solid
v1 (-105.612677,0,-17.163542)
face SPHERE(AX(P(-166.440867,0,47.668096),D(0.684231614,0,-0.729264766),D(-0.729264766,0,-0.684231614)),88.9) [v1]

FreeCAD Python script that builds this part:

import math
import FreeCAD as App
import Part
import Sketcher
Q = App.Units.Quantity

doc = App.newDocument("Part")
body = doc.addObject("PartDesign::Body", "Body")

# Sketch on XZ plane
sketch1 = body.newObject("Sketcher::SketchObject", "Sketch")
sketch1.AttachmentSupport = (doc.getObject("XZ_Plane"), [""])
sketch1.MapMode = "FlatFace"
sketch1.addGeometry(Part.LineSegment(App.Vector(-227, 112, 0), App.Vector(-106, -17, 0)), False)
sketch1.addGeometry(Part.ArcOfCircle(Part.Circle(App.Vector(-166, 48, 0), App.Vector(0, 0, 1), 89), math.radians(133), math.radians(313)), False)
sketch1.addGeometry(Part.LineSegment(App.Vector(-227, 112, 0), App.Vector(-106, -17, 0)), True)  # axis
sketch1.addConstraint(Sketcher.Constraint("Coincident", 0, 1, 1, 1))
sketch1.addConstraint(Sketcher.Constraint("Coincident", 1, 2, 0, 2))
sketch1.addConstraint(Sketcher.Constraint("Coincident", 2, 1, 0, 1))
sketch1.addConstraint(Sketcher.Constraint("Coincident", 2, 2, 1, 2))
sketch1.addConstraint(Sketcher.Constraint("Radius", 1, Q("3.5 in")))
sketch1.addConstraint(Sketcher.Constraint("DistanceY", 1, 2, -1, 1, Q("17.163542 mm")))
sketch1.addConstraint(Sketcher.Constraint("DistanceX", 0, 1, 1, 3, Q("60.82819 mm")))
sketch1.addConstraint(Sketcher.Constraint("DistanceX", 1, 3, 1, 2, Q("60.82819 mm")))
sketch1.addConstraint(Sketcher.Constraint("DistanceX", 1, 3, -1, 1, Q("166.440867 mm")))
revolution = body.newObject("PartDesign::Revolution", "Revolution")
revolution.Profile = sketch1
revolution.ReferenceAxis = (sketch1, ["Axis0"])
revolution.Angle = 360

doc.recompute()
